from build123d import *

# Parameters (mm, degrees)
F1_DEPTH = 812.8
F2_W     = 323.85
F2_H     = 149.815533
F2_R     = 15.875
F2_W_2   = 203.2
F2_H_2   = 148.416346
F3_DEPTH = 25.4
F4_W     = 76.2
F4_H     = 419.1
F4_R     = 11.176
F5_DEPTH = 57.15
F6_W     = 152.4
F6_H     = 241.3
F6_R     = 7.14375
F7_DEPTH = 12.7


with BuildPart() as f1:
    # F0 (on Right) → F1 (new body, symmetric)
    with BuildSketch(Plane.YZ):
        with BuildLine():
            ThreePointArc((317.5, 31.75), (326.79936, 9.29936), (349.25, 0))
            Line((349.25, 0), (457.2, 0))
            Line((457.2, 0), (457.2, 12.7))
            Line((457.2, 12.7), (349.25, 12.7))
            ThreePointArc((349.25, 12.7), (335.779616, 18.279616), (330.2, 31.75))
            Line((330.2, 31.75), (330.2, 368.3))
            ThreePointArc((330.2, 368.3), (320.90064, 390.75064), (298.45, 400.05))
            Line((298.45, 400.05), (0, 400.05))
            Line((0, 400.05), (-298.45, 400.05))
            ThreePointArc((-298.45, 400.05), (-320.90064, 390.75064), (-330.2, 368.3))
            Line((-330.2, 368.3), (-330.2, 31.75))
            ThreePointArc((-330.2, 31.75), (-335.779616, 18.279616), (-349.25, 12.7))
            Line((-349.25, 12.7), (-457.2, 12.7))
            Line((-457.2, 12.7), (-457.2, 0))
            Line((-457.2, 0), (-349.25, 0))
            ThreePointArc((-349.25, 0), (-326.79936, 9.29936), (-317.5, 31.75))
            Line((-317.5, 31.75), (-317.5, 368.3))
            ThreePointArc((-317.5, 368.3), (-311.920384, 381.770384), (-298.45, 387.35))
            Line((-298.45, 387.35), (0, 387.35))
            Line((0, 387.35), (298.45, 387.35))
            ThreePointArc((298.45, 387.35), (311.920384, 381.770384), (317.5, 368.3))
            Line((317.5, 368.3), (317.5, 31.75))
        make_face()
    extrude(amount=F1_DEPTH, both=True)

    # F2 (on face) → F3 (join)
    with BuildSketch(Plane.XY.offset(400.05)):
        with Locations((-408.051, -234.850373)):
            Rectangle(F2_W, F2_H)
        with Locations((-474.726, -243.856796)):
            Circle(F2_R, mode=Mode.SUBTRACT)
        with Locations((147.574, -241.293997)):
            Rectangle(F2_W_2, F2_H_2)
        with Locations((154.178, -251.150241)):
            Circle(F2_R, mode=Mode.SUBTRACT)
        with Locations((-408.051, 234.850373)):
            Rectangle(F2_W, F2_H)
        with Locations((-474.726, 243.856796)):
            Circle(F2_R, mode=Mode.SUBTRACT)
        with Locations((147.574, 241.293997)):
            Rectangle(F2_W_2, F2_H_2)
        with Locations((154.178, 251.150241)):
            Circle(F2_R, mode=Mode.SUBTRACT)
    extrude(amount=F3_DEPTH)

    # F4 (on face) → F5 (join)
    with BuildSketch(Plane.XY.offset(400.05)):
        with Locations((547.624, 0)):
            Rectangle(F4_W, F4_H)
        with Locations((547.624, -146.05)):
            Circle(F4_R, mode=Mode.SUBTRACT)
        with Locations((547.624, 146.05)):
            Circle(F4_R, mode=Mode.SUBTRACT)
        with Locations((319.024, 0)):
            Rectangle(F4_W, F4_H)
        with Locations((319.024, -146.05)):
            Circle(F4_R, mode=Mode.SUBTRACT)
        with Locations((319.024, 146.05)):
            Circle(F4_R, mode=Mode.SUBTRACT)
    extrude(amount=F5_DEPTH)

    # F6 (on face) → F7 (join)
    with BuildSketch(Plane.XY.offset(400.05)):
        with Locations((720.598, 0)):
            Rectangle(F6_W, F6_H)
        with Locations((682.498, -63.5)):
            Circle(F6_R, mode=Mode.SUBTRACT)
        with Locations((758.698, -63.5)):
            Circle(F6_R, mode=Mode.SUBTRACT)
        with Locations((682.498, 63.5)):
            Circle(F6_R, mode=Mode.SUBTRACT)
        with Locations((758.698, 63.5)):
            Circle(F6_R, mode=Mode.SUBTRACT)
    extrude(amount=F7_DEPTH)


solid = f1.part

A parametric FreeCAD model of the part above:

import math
import FreeCAD as App
import Part
import Sketcher
Q = App.Units.Quantity


def add_polygon(sketch, points):
    """Adds a closed chain of lines whose ends are joined by coincident constraints."""
    first, n = sketch.GeometryCount, len(points)
    for a, b in zip(points, points[1:] + points[:1]):
        sketch.addGeometry(Part.LineSegment(App.Vector(*a, 0), App.Vector(*b, 0)), False)
    for i in range(n):
        sketch.addConstraint(Sketcher.Constraint("Coincident", first + i, 2, first + (i + 1) % n, 1))

doc = App.newDocument("Part")
body = doc.addObject("PartDesign::Body", "Body")

sketch1 = body.newObject("Sketcher::SketchObject", "Sketch")
sketch1.AttachmentSupport = (doc.getObject("YZ_Plane"), [""])
sketch1.MapMode = "FlatFace"
sketch1.addGeometry(Part.ArcOfCircle(Part.Circle(App.Vector(349.250001, 31.750001, 0), App.Vector(0, 0, 1), 31.750001), math.radians(-179.999998), math.radians(-90.000002)), False)
sketch1.addGeometry(Part.LineSegment(App.Vector(349.25, 0, 0), App.Vector(457.2, 0, 0)), False)
sketch1.addGeometry(Part.LineSegment(App.Vector(457.2, 0, 0), App.Vector(457.2, 12.7, 0)), False)
sketch1.addGeometry(Part.LineSegment(App.Vector(457.2, 12.7, 0), App.Vector(349.25, 12.7, 0)), False)
sketch1.addGeometry(Part.ArcOfCircle(Part.Circle(App.Vector(349.250001, 31.750001, 0), App.Vector(0, 0, 1), 19.050001), math.radians(-179.999998), math.radians(-90.000002)), False)
sketch1.addGeometry(Part.LineSegment(App.Vector(330.2, 31.75, 0), App.Vector(330.2, 368.3, 0)), False)
sketch1.addGeometry(Part.ArcOfCircle(Part.Circle(App.Vector(298.449999, 368.299999, 0), App.Vector(0, 0, 1), 31.750001), math.radians(0.000002), math.radians(89.999998)), False)
sketch1.addGeometry(Part.LineSegment(App.Vector(298.45, 400.05, 0), App.Vector(-298.45, 400.05, 0)), False)
sketch1.addGeometry(Part.ArcOfCircle(Part.Circle(App.Vector(-298.449999, 368.299999, 0), App.Vector(0, 0, 1), 31.750001), math.radians(90.000002), math.radians(179.999998)), False)
sketch1.addGeometry(Part.LineSegment(App.Vector(-330.2, 368.3, 0), App.Vector(-330.2, 31.75, 0)), False)
sketch1.addGeometry(Part.ArcOfCircle(Part.Circle(App.Vector(-349.250001, 31.750001, 0), App.Vector(0, 0, 1), 19.050001), math.radians(-89.999998), math.radians(-0.000002)), False)
sketch1.addGeometry(Part.LineSegment(App.Vector(-349.25, 12.7, 0), App.Vector(-457.2, 12.7, 0)), False)
sketch1.addGeometry(Part.LineSegment(App.Vector(-457.2, 12.7, 0), App.Vector(-457.2, 0, 0)), False)
sketch1.addGeometry(Part.LineSegment(App.Vector(-457.2, 0, 0), App.Vector(-349.25, 0, 0)), False)
sketch1.addGeometry(Part.ArcOfCircle(Part.Circle(App.Vector(-349.250001, 31.750001, 0), App.Vector(0, 0, 1), 31.750001), math.radians(-89.999998), math.radians(-0.000002)), False)
sketch1.addGeometry(Part.LineSegment(App.Vector(-317.5, 31.75, 0), App.Vector(-317.5, 368.3, 0)), False)
sketch1.addGeometry(Part.ArcOfCircle(Part.Circle(App.Vector(-298.449999, 368.299999, 0), App.Vector(0, 0, 1), 19.050001), math.radians(90.000002), math.radians(179.999998)), False)
sketch1.addGeometry(Part.LineSegment(App.Vector(-298.45, 387.35, 0), App.Vector(298.45, 387.35, 0)), False)
sketch1.addGeometry(Part.ArcOfCircle(Part.Circle(App.Vector(298.449999, 368.299999, 0), App.Vector(0, 0, 1), 19.050001), math.radians(0.000002), math.radians(89.999998)), False)
sketch1.addGeometry(Part.LineSegment(App.Vector(317.5, 368.3, 0), App.Vector(317.5, 31.75, 0)), False)
sketch1.addConstraint(Sketcher.Constraint("Tangent", 0, 2, 1, 1))
sketch1.addConstraint(Sketcher.Constraint("Coincident", 1, 2, 2, 1))
sketch1.addConstraint(Sketcher.Constraint("Coincident", 2, 2, 3, 1))
sketch1.addConstraint(Sketcher.Constraint("Tangent", 3, 2, 4, 2))
sketch1.addConstraint(Sketcher.Constraint("Tangent", 4, 1, 5, 1))
sketch1.addConstraint(Sketcher.Constraint("Tangent", 5, 2, 6, 1))
sketch1.addConstraint(Sketcher.Constraint("Tangent", 6, 2, 7, 1))
sketch1.addConstraint(Sketcher.Constraint("Tangent", 7, 2, 8, 1))
sketch1.addConstraint(Sketcher.Constraint("Tangent", 8, 2, 9, 1))
sketch1.addConstraint(Sketcher.Constraint("Tangent", 9, 2, 10, 2))
sketch1.addConstraint(Sketcher.Constraint("Tangent", 10, 1, 11, 1))
sketch1.addConstraint(Sketcher.Constraint("Coincident", 11, 2, 12, 1))
sketch1.addConstraint(Sketcher.Constraint("Coincident", 12, 2, 13, 1))
sketch1.addConstraint(Sketcher.Constraint("Tangent", 13, 2, 14, 1))
sketch1.addConstraint(Sketcher.Constraint("Tangent", 14, 2, 15, 1))
sketch1.addConstraint(Sketcher.Constraint("Tangent", 15, 2, 16, 2))
sketch1.addConstraint(Sketcher.Constraint("Tangent", 16, 1, 17, 1))
sketch1.addConstraint(Sketcher.Constraint("Tangent", 17, 2, 18, 2))
sketch1.addConstraint(Sketcher.Constraint("Tangent", 18, 1, 19, 1))
sketch1.addConstraint(Sketcher.Constraint("Tangent", 19, 2, 0, 1))
sketch1.addConstraint(Sketcher.Constraint("Horizontal", 1))
sketch1.addConstraint(Sketcher.Constraint("Vertical", 2))
sketch1.addConstraint(Sketcher.Constraint("Horizontal", 3))
sketch1.addConstraint(Sketcher.Constraint("Vertical", 5))
sketch1.addConstraint(Sketcher.Constraint("Horizontal", 7))
sketch1.addConstraint(Sketcher.Constraint("Vertical", 9))
sketch1.addConstraint(Sketcher.Constraint("Horizontal", 11))
sketch1.addConstraint(Sketcher.Constraint("Vertical", 12))
sketch1.addConstraint(Sketcher.Constraint("Horizontal", 13))
sketch1.addConstraint(Sketcher.Constraint("Vertical", 15))
sketch1.addConstraint(Sketcher.Constraint("Horizontal", 17))
sketch1.addConstraint(Sketcher.Constraint("Vertical", 19))
sketch1.addConstraint(Sketcher.Constraint("Coincident", 4, 3, 0, 3))
sketch1.addConstraint(Sketcher.Constraint("Coincident", 14, 3, 10, 3))
sketch1.addConstraint(Sketcher.Constraint("Coincident", 16, 3, 8, 3))
sketch1.addConstraint(Sketcher.Constraint("Coincident", 18, 3, 6, 3))
sketch1.addConstraint(Sketcher.Constraint("Equal", 0, 6))
sketch1.addConstraint(Sketcher.Constraint("Equal", 6, 8))
sketch1.addConstraint(Sketcher.Constraint("Equal", 4, 10))
sketch1.addConstraint(Sketcher.Constraint("Symmetric", 1, 2, 12, 2, -1, 1))
sketch1.addConstraint(Sketcher.Constraint("Symmetric", 0, 3, 10, 3, -2))
sketch1.addConstraint(Sketcher.Constraint("Radius", 0, Q("1.25 in")))
sketch1.addConstraint(Sketcher.Constraint("Radius", 4, Q("0.75 in")))
sketch1.addConstraint(Sketcher.Constraint("DistanceX", 7, 2, 7, 1, Q("23.5 in")))
sketch1.addConstraint(Sketcher.Constraint("DistanceX", -1, 1, 1, 2, Q("18 in")))
sketch1.addConstraint(Sketcher.Constraint("DistanceY", 2, 2, 6, 3, Q("14 in")))
pad1 = body.newObject("PartDesign::Pad", "Pad")
pad1.Profile = sketch1
pad1.Length = Q("64 in")
pad1.Midplane = True

sketch2 = body.newObject("Sketcher::SketchObject", "Sketch001")
sketch2.AttachmentSupport = (doc.getObject("XY_Plane"), [""])
sketch2.MapMode = "FlatFace"
sketch2.AttachmentOffset = App.Placement(App.Vector(0, 0, 15.75 * 25.4), App.Rotation())
add_polygon(sketch2, [(-569.976, -159.942607), (-569.976, -309.75814), (-246.126, -309.75814), (-246.126, -159.942607)])
sketch2.addGeometry(Part.Circle(App.Vector(-474.726, -243.856796, 0), App.Vector(0, 0, 1), 15.875), False)
add_polygon(sketch2, [(45.974, -167.085824), (45.974, -315.50217), (249.174, -315.50217), (249.174, -167.085824)])
sketch2.addGeometry(Part.Circle(App.Vector(154.178, -251.150241, 0), App.Vector(0, 0, 1), 15.875), False)
add_polygon(sketch2, [(-569.976, 309.75814), (-569.976, 159.942607), (-246.126, 159.942607), (-246.126, 309.75814)])
sketch2.addGeometry(Part.Circle(App.Vector(-474.726, 243.856796, 0), App.Vector(0, 0, 1), 15.875), False)
add_polygon(sketch2, [(45.974, 315.50217), (45.974, 167.085824), (249.174, 167.085824), (249.174, 315.50217)])
sketch2.addGeometry(Part.Circle(App.Vector(154.178, 251.150241, 0), App.Vector(0, 0, 1), 15.875), False)
sketch2.addConstraint(Sketcher.Constraint("Vertical", 0))
sketch2.addConstraint(Sketcher.Constraint("Horizontal", 1))
sketch2.addConstraint(Sketcher.Constraint("Vertical", 2))
sketch2.addConstraint(Sketcher.Constraint("Horizontal", 3))
sketch2.addConstraint(Sketcher.Constraint("Vertical", 5))
sketch2.addConstraint(Sketcher.Constraint("Horizontal", 6))
sketch2.addConstraint(Sketcher.Constraint("Vertical", 7))
sketch2.addConstraint(Sketcher.Constraint("Horizontal", 8))
sketch2.addConstraint(Sketcher.Constraint("Vertical", 10))
sketch2.addConstraint(Sketcher.Constraint("Horizontal", 11))
sketch2.addConstraint(Sketcher.Constraint("Vertical", 12))
sketch2.addConstraint(Sketcher.Constraint("Horizontal", 13))
sketch2.addConstraint(Sketcher.Constraint("Vertical", 15))
sketch2.addConstraint(Sketcher.Constraint("Horizontal", 16))
sketch2.addConstraint(Sketcher.Constraint("Vertical", 17))
sketch2.addConstraint(Sketcher.Constraint("Horizontal", 18))
sketch2.addConstraint(Sketcher.Constraint("Equal", 4, 9))
sketch2.addConstraint(Sketcher.Constraint("Equal", 9, 14))
sketch2.addConstraint(Sketcher.Constraint("Equal", 14, 19))
sketch2.addConstraint(Sketcher.Constraint("Symmetric", 4, 3, 14, 3, -1))
sketch2.addConstraint(Sketcher.Constraint("Symmetric", 9, 3, 19, 3, -1))
sketch2.addConstraint(Sketcher.Constraint("Symmetric", 3, 2, 10, 2, -1))
sketch2.addConstraint(Sketcher.Constraint("Symmetric", 1, 2, 12, 2, -1))
sketch2.addConstraint(Sketcher.Constraint("Symmetric", 8, 2, 15, 2, -1))
sketch2.addConstraint(Sketcher.Constraint("Symmetric", 6, 2, 17, 2, -1))
sketch2.addConstraint(Sketcher.Constraint("Diameter", 4, Q("1.25 in")))
sketch2.addConstraint(Sketcher.Constraint("DistanceX", 6, 1, 6, 2, Q("8 in")))
sketch2.addConstraint(Sketcher.Constraint("DistanceX", 4, 3, 1, 2, Q("9 in")))
sketch2.addConstraint(Sketcher.Constraint("DistanceX", 1, 1, 1, 2, Q("12.75 in")))
sketch2.addConstraint(Sketcher.Constraint("DistanceX", 1, 2, 5, 2, Q("11.5 in")))
sketch2.addConstraint(Sketcher.Constraint("DistanceX", 4, 3, -1, 1, Q("18.69 in")))
sketch2.addConstraint(Sketcher.Constraint("DistanceX", -1, 1, 9, 3, Q("6.07 in")))
sketch2.addConstraint(Sketcher.Constraint("DistanceY", 0, 2, 9, 3, Q("58.607899 mm")))
sketch2.addConstraint(Sketcher.Constraint("DistanceY", 0, 2, 0, 1, Q("149.815533 mm")))
sketch2.addConstraint(Sketcher.Constraint("DistanceY", 5, 2, 5, 1, Q("148.416346 mm")))
sketch2.addConstraint(Sketcher.Constraint("DistanceY", 9, 3, -1, 1, Q("251.150241 mm")))
sketch2.addConstraint(Sketcher.Constraint("DistanceY", 5, 2, -1, 1, Q("315.50217 mm")))
sketch2.addConstraint(Sketcher.Constraint("DistanceY", 4, 3, 14, 3, Q("487.713592 mm")))
pad2 = body.newObject("PartDesign::Pad", "Pad001")
pad2.Profile = sketch2
pad2.Length = Q("1 in")

sketch3 = body.newObject("Sketcher::SketchObject", "Sketch002")
sketch3.AttachmentSupport = (doc.getObject("XY_Plane"), [""])
sketch3.MapMode = "FlatFace"
sketch3.AttachmentOffset = App.Placement(App.Vector(0, 0, 15.75 * 25.4), App.Rotation())
add_polygon(sketch3, [(509.524, 209.55), (509.524, -209.55), (585.724, -209.55), (585.724, 209.55)])
sketch3.addGeometry(Part.Circle(App.Vector(547.624, -146.05, 0), App.Vector(0, 0, 1), 11.176), False)
sketch3.addGeometry(Part.Circle(App.Vector(547.624, 146.05, 0), App.Vector(0, 0, 1), 11.176), False)
add_polygon(sketch3, [(280.924, 209.55), (280.924, -209.55), (357.124, -209.55), (357.124, 209.55)])
sketch3.addGeometry(Part.Circle(App.Vector(319.024, -146.05, 0), App.Vector(0, 0, 1), 11.176), False)
sketch3.addGeometry(Part.Circle(App.Vector(319.024, 146.05, 0), App.Vector(0, 0, 1), 11.176), False)
sketch3.addConstraint(Sketcher.Constraint("Vertical", 0))
sketch3.addConstraint(Sketcher.Constraint("Horizontal", 1))
sketch3.addConstraint(Sketcher.Constraint("Vertical", 2))
sketch3.addConstraint(Sketcher.Constraint("Horizontal", 3))
sketch3.addConstraint(Sketcher.Constraint("Vertical", 6))
sketch3.addConstraint(Sketcher.Constraint("Horizontal", 7))
sketch3.addConstraint(Sketcher.Constraint("Vertical", 8))
sketch3.addConstraint(Sketcher.Constraint("Horizontal", 9))
sketch3.addConstraint(Sketcher.Constraint("Equal", 4, 5))
sketch3.addConstraint(Sketcher.Constraint("Equal", 5, 10))
sketch3.addConstraint(Sketcher.Constraint("Equal", 10, 11))
sketch3.addConstraint(Sketcher.Constraint("Symmetric", 4, 3, 5, 3, -1))
sketch3.addConstraint(Sketcher.Constraint("Symmetric", 10, 3, 11, 3, -1))
sketch3.addConstraint(Sketcher.Constraint("Horizontal", 4, 3, 10, 3))
sketch3.addConstraint(Sketcher.Constraint("Horizontal", 1, 2, 6, 2))
sketch3.addConstraint(Sketcher.Constraint("Horizontal", 3, 2, 8, 2))
sketch3.addConstraint(Sketcher.Constraint("Equal", 3, 7))
sketch3.addConstraint(Sketcher.Constraint("Diameter", 4, Q("0.88 in")))
sketch3.addConstraint(Sketcher.Constraint("DistanceX", 1, 1, 1, 2, Q("3 in")))
sketch3.addConstraint(Sketcher.Constraint("DistanceY", 0, 2, 0, 1, Q("16.5 in")))
sketch3.addConstraint(Sketcher.Constraint("DistanceX", 10, 3, 4, 3, Q("9 in")))
sketch3.addConstraint(Sketcher.Constraint("DistanceY", 0, 2, 5, 3, Q("14 in")))
sketch3.addConstraint(Sketcher.Constraint("DistanceY", 4, 3, 2, 2, Q("14 in")))
sketch3.addConstraint(Sketcher.Constraint("DistanceX", 6, 2, 0, 2, Q("9 in")))
sketch3.addConstraint(Sketcher.Constraint("DistanceX", 0, 2, 4, 3, Q("1.5 in")))
sketch3.addConstraint(Sketcher.Constraint("DistanceX", -1, 1, 4, 3, Q("21.56 in")))
pad3 = body.newObject("PartDesign::Pad", "Pad002")
pad3.Profile = sketch3
pad3.Length = Q("2.25 in")

sketch4 = body.newObject("Sketcher::SketchObject", "Sketch003")
sketch4.AttachmentSupport = (doc.getObject("XY_Plane"), [""])
sketch4.MapMode = "FlatFace"
sketch4.AttachmentOffset = App.Placement(App.Vector(0, 0, 15.75 * 25.4), App.Rotation())
add_polygon(sketch4, [(644.398, 120.65), (644.398, -120.65), (796.798, -120.65), (796.798, 120.65)])
sketch4.addGeometry(Part.Circle(App.Vector(682.498, -63.5, 0), App.Vector(0, 0, 1), 7.14375), False)
sketch4.addGeometry(Part.Circle(App.Vector(758.698, -63.5, 0), App.Vector(0, 0, 1), 7.14375), False)
sketch4.addGeometry(Part.Circle(App.Vector(682.498, 63.5, 0), App.Vector(0, 0, 1), 7.14375), False)
sketch4.addGeometry(Part.Circle(App.Vector(758.698, 63.5, 0), App.Vector(0, 0, 1), 7.14375), False)
sketch4.addConstraint(Sketcher.Constraint("Vertical", 0))
sketch4.addConstraint(Sketcher.Constraint("Horizontal", 1))
sketch4.addConstraint(Sketcher.Constraint("Vertical", 2))
sketch4.addConstraint(Sketcher.Constraint("Horizontal", 3))
sketch4.addConstraint(Sketcher.Constraint("Equal", 4, 5))
sketch4.addConstraint(Sketcher.Constraint("Equal", 5, 6))
sketch4.addConstraint(Sketcher.Constraint("Equal", 6, 7))
sketch4.addConstraint(Sketcher.Constraint("Symmetric", 4, 3, 6, 3, -1))
sketch4.addConstraint(Sketcher.Constraint("Symmetric", 5, 3, 7, 3, -1))
sketch4.addConstraint(Sketcher.Constraint("Horizontal", 4, 3, 5, 3))
sketch4.addConstraint(Sketcher.Constraint("DistanceX", 1, 1, 1, 2, Q("6 in")))
sketch4.addConstraint(Sketcher.Constraint("Diameter", 4, Q("0.5625 in")))
sketch4.addConstraint(Sketcher.Constraint("DistanceY", 0, 2, 0, 1, Q("9.5 in")))
sketch4.addConstraint(Sketcher.Constraint("DistanceX", 4, 3, 5, 3, Q("3 in")))
sketch4.addConstraint(Sketcher.Constraint("DistanceY", 4, 3, 6, 3, Q("5 in")))
sketch4.addConstraint(Sketcher.Constraint("DistanceX", 0, 2, 4, 3, Q("1.5 in")))
sketch4.addConstraint(Sketcher.Constraint("DistanceX", -1, 1, 4, 3, Q("26.87 in")))
sketch4.addConstraint(Sketcher.Constraint("DistanceY", 0, 2, -1, 1, Q("4.75 in")))
pad4 = body.newObject("PartDesign::Pad", "Pad003")
pad4.Profile = sketch4
pad4.Length = Q("0.5 in")

doc.recompute()
